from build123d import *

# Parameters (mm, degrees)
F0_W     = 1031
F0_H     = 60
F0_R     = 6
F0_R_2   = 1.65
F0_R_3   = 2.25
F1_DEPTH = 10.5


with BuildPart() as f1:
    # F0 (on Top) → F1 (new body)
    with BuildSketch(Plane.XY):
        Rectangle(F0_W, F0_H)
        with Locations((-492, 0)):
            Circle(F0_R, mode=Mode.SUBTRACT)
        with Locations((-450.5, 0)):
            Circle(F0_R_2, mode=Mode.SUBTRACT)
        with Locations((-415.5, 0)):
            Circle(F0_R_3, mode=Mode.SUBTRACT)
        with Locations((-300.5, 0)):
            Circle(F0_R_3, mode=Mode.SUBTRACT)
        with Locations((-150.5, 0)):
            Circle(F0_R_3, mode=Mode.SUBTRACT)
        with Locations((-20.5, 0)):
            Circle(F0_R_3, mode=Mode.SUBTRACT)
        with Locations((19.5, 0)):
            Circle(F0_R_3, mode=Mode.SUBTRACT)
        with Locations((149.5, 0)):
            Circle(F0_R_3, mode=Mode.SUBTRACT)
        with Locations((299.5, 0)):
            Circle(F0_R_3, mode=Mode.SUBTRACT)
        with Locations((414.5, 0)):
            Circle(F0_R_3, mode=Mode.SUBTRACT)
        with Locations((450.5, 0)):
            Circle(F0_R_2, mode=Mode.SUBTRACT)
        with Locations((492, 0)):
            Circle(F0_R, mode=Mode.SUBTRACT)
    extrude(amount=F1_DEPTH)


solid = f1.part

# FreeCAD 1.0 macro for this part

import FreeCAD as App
import Part
import Sketcher

V = App.Vector
Q = App.Units.Quantity


def add_polygon(sketch, points):
    """Adds a closed chain of lines whose ends are joined by coincident constraints."""
    first, n = sketch.GeometryCount, len(points)
    for a, b in zip(points, points[1:] + points[:1]):
        sketch.addGeometry(Part.LineSegment(App.Vector(*a, 0), App.Vector(*b, 0)), False)
    for i in range(n):
        sketch.addConstraint(Sketcher.Constraint("Coincident", first + i, 2, first + (i + 1) % n, 1))

doc = App.newDocument("Part")
body = doc.addObject("PartDesign::Body", "Body")

# Sketch on XY plane
sketch1 = body.newObject("Sketcher::SketchObject", "Sketch")
sketch1.AttachmentSupport = (doc.getObject("XY_Plane"), [""])
sketch1.MapMode = "FlatFace"
add_polygon(sketch1, [(-515.5, 30), (-515.5, -30), (515.5, -30), (515.5, 30)])  # lines 0-3
sketch1.addGeometry(Part.Circle(V(-492, 0, 0), V(0, 0, 1), 6), False)  # 4
sketch1.addGeometry(Part.Circle(V(-450.5, 0, 0), V(0, 0, 1), 1.6), False)  # 5
sketch1.addGeometry(Part.Circle(V(-415.5, 0, 0), V(0, 0, 1), 2.2), False)  # 6
sketch1.addGeometry(Part.Circle(V(-300.5, 0, 0), V(0, 0, 1), 2.2), False)  # 7
sketch1.addGeometry(Part.Circle(V(-150.5, 0, 0), V(0, 0, 1), 2.2), False)  # 8
sketch1.addGeometry(Part.Circle(V(-20.5, 0, 0), V(0, 0, 1), 2.2), False)  # 9
sketch1.addGeometry(Part.Circle(V(19.5, 0, 0), V(0, 0, 1), 2.2), False)  # 10
sketch1.addGeometry(Part.Circle(V(149.5, 0, 0), V(0, 0, 1), 2.2), False)  # 11
sketch1.addGeometry(Part.Circle(V(299.5, 0, 0), V(0, 0, 1), 2.2), False)  # 12
sketch1.addGeometry(Part.Circle(V(414.5, 0, 0), V(0, 0, 1), 2.2), False)  # 13
sketch1.addGeometry(Part.Circle(V(450.5, 0, 0), V(0, 0, 1), 1.6), False)  # 14
sketch1.addGeometry(Part.Circle(V(492, 0, 0), V(0, 0, 1), 6), False)  # 15
sketch1.addConstraint([
    Sketcher.Constraint("Vertical", 0),
    Sketcher.Constraint("Horizontal", 1),
    Sketcher.Constraint("Vertical", 2),
    Sketcher.Constraint("Horizontal", 3),
    Sketcher.Constraint("Equal", 6, 7),
    Sketcher.Constraint("Equal", 7, 8),
    Sketcher.Constraint("Equal", 8, 9),
    Sketcher.Constraint("Equal", 9, 10),
    Sketcher.Constraint("Equal", 10, 11),
    Sketcher.Constraint("Equal", 11, 12),
    Sketcher.Constraint("Equal", 12, 13),
    Sketcher.Constraint("Equal", 5, 14),
    Sketcher.Constraint("Equal", 4, 15),
    Sketcher.Constraint("Symmetric", 5, 3, 14, 3, -1, 1),
    Sketcher.Constraint("Symmetric", 4, 3, 15, 3, -1, 1),
    Sketcher.Constraint("Symmetric", 0, 2, 2, 2, -1, 1),
    Sketcher.Constraint("PointOnObject", 4, 3, -1),
    Sketcher.Constraint("PointOnObject", 5, 3, -1),
    Sketcher.Constraint("PointOnObject", 6, 3, -1),
    Sketcher.Constraint("PointOnObject", 7, 3, -1),
    Sketcher.Constraint("PointOnObject", 8, 3, -1),
    Sketcher.Constraint("PointOnObject", 9, 3, -1),
    Sketcher.Constraint("PointOnObject", 10, 3, -1),
    Sketcher.Constraint("PointOnObject", 11, 3, -1),
    Sketcher.Constraint("PointOnObject", 12, 3, -1),
    Sketcher.Constraint("PointOnObject", 13, 3, -1),
    Sketcher.Constraint("Diameter", 4, Q("12 mm")),
    Sketcher.Constraint("Diameter", 5, Q("3.3 mm")),
    Sketcher.Constraint("Diameter", 6, Q("4.5 mm")),
    Sketcher.Constraint("DistanceX", 1, 1, 1, 2, Q("1031 mm")),
    Sketcher.Constraint("DistanceY", 0, 2, 0, 1, Q("60 mm")),
    Sketcher.Constraint("DistanceX", 4, 3, -1, 1, Q("492 mm")),
    Sketcher.Constraint("DistanceX", 5, 3, 6, 3, Q("35 mm")),
    Sketcher.Constraint("DistanceX", 6, 3, 7, 3, Q("115 mm")),
    Sketcher.Constraint("DistanceX", 7, 3, 8, 3, Q("150 mm")),
    Sketcher.Constraint("DistanceX", 8, 3, 9, 3, Q("130 mm")),
    Sketcher.Constraint("DistanceX", 9, 3, 10, 3, Q("40 mm")),
    Sketcher.Constraint("DistanceX", 10, 3, 11, 3, Q("130 mm")),
    Sketcher.Constraint("DistanceX", 11, 3, 12, 3, Q("150 mm")),
    Sketcher.Constraint("DistanceX", 12, 3, 13, 3, Q("115 mm")),
    Sketcher.Constraint("DistanceX", 13, 3, 14, 3, Q("36 mm")),
])
pad1 = body.newObject("PartDesign::Pad", "Pad")
pad1.Profile = sketch1
pad1.Length = 10.5

doc.recompute()
